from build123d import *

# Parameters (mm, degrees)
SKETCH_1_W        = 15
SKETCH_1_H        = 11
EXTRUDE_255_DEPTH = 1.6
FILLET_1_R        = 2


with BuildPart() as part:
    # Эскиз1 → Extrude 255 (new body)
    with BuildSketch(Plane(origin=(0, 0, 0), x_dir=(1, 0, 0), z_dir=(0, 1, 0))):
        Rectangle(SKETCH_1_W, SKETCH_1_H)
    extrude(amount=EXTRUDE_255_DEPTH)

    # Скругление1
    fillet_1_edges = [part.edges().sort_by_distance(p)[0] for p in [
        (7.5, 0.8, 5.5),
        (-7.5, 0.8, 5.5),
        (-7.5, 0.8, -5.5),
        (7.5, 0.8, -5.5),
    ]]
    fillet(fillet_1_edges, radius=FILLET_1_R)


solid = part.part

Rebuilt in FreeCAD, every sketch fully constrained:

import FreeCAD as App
import Part
import Sketcher
from FreeCAD import Vector
Q = App.Units.Quantity


def edges_at(feature, points):
    """Names of the edges that pass closest to the given points."""
    edges = feature.Shape.Edges
    near = lambda p: min(range(len(edges)), key=lambda i: edges[i].distToShape(Part.Vertex(*p))[0])
    return sorted({f"Edge{near(p) + 1}" for p in points})


def add_polygon(sketch, points):
    """Adds a closed chain of lines whose ends are joined by coincident constraints."""
    first, n = sketch.GeometryCount, len(points)
    for a, b in zip(points, points[1:] + points[:1]):
        sketch.addGeometry(Part.LineSegment(App.Vector(*a, 0), App.Vector(*b, 0)), False)
    for i in range(n):
        sketch.addConstraint(Sketcher.Constraint("Coincident", first + i, 2, first + (i + 1) % n, 1))

doc = App.newDocument("Part")
params = doc.addObject("Spreadsheet::Sheet", "Params")
for row, (alias, value) in enumerate([
    ("sketch1_width", "15 mm"),
    ("sketch1_height", "11 mm"),
    ("pad1_length", "1.6 mm"),
    ("fillet_radius", "2 mm"),
], start=1):
    params.set(f"A{row}", alias)
    params.set(f"B{row}", "=" + value)
    params.setAlias(f"B{row}", alias)

body = doc.addObject("PartDesign::Body", "Body")

sketch1 = doc.addObject("Sketcher::SketchObject", "Sketch")
body.addObject(sketch1)
sketch1.AttachmentSupport = (doc.XZ_Plane, [""])
sketch1.MapMode = "FlatFace"
add_polygon(sketch1, [(-8, -6), (-8, 6), (8, 6), (8, -6)])
sketch1.addConstraint([
    Sketcher.Constraint("Vertical", 0),
    Sketcher.Constraint("Horizontal", 1),
    Sketcher.Constraint("Vertical", 2),
    Sketcher.Constraint("Horizontal", 3),
    Sketcher.Constraint("Symmetric", 0, 2, 2, 2, -1, 1),
    Sketcher.Constraint("DistanceX", 1, 1, 1, 2, Q("15 mm")),
    Sketcher.Constraint("DistanceY", 0, 1, 0, 2, Q("11 mm")),
])
sketch1.setExpression("Constraints[9]", "Params.sketch1_width")
sketch1.setExpression("Constraints[10]", "Params.sketch1_height")
pad1 = doc.addObject("PartDesign::Pad", "Pad")
body.addObject(pad1)
pad1.Profile = sketch1
pad1.setExpression("Length", "Params.pad1_length")
pad1.Reversed = True
doc.recompute()

fillet = doc.addObject("PartDesign::Fillet", "Fillet")
body.addObject(fillet)
fillet.Base = (pad1, edges_at(pad1, [
    (7.5, 0.8, 5.5),
    (-7.5, 0.8, 5.5),
    (-7.5, 0.8, -5.5),
    (7.5, 0.8, -5.5),
]))
fillet.setExpression("Radius", "Params.fillet_radius")

doc.recompute()
